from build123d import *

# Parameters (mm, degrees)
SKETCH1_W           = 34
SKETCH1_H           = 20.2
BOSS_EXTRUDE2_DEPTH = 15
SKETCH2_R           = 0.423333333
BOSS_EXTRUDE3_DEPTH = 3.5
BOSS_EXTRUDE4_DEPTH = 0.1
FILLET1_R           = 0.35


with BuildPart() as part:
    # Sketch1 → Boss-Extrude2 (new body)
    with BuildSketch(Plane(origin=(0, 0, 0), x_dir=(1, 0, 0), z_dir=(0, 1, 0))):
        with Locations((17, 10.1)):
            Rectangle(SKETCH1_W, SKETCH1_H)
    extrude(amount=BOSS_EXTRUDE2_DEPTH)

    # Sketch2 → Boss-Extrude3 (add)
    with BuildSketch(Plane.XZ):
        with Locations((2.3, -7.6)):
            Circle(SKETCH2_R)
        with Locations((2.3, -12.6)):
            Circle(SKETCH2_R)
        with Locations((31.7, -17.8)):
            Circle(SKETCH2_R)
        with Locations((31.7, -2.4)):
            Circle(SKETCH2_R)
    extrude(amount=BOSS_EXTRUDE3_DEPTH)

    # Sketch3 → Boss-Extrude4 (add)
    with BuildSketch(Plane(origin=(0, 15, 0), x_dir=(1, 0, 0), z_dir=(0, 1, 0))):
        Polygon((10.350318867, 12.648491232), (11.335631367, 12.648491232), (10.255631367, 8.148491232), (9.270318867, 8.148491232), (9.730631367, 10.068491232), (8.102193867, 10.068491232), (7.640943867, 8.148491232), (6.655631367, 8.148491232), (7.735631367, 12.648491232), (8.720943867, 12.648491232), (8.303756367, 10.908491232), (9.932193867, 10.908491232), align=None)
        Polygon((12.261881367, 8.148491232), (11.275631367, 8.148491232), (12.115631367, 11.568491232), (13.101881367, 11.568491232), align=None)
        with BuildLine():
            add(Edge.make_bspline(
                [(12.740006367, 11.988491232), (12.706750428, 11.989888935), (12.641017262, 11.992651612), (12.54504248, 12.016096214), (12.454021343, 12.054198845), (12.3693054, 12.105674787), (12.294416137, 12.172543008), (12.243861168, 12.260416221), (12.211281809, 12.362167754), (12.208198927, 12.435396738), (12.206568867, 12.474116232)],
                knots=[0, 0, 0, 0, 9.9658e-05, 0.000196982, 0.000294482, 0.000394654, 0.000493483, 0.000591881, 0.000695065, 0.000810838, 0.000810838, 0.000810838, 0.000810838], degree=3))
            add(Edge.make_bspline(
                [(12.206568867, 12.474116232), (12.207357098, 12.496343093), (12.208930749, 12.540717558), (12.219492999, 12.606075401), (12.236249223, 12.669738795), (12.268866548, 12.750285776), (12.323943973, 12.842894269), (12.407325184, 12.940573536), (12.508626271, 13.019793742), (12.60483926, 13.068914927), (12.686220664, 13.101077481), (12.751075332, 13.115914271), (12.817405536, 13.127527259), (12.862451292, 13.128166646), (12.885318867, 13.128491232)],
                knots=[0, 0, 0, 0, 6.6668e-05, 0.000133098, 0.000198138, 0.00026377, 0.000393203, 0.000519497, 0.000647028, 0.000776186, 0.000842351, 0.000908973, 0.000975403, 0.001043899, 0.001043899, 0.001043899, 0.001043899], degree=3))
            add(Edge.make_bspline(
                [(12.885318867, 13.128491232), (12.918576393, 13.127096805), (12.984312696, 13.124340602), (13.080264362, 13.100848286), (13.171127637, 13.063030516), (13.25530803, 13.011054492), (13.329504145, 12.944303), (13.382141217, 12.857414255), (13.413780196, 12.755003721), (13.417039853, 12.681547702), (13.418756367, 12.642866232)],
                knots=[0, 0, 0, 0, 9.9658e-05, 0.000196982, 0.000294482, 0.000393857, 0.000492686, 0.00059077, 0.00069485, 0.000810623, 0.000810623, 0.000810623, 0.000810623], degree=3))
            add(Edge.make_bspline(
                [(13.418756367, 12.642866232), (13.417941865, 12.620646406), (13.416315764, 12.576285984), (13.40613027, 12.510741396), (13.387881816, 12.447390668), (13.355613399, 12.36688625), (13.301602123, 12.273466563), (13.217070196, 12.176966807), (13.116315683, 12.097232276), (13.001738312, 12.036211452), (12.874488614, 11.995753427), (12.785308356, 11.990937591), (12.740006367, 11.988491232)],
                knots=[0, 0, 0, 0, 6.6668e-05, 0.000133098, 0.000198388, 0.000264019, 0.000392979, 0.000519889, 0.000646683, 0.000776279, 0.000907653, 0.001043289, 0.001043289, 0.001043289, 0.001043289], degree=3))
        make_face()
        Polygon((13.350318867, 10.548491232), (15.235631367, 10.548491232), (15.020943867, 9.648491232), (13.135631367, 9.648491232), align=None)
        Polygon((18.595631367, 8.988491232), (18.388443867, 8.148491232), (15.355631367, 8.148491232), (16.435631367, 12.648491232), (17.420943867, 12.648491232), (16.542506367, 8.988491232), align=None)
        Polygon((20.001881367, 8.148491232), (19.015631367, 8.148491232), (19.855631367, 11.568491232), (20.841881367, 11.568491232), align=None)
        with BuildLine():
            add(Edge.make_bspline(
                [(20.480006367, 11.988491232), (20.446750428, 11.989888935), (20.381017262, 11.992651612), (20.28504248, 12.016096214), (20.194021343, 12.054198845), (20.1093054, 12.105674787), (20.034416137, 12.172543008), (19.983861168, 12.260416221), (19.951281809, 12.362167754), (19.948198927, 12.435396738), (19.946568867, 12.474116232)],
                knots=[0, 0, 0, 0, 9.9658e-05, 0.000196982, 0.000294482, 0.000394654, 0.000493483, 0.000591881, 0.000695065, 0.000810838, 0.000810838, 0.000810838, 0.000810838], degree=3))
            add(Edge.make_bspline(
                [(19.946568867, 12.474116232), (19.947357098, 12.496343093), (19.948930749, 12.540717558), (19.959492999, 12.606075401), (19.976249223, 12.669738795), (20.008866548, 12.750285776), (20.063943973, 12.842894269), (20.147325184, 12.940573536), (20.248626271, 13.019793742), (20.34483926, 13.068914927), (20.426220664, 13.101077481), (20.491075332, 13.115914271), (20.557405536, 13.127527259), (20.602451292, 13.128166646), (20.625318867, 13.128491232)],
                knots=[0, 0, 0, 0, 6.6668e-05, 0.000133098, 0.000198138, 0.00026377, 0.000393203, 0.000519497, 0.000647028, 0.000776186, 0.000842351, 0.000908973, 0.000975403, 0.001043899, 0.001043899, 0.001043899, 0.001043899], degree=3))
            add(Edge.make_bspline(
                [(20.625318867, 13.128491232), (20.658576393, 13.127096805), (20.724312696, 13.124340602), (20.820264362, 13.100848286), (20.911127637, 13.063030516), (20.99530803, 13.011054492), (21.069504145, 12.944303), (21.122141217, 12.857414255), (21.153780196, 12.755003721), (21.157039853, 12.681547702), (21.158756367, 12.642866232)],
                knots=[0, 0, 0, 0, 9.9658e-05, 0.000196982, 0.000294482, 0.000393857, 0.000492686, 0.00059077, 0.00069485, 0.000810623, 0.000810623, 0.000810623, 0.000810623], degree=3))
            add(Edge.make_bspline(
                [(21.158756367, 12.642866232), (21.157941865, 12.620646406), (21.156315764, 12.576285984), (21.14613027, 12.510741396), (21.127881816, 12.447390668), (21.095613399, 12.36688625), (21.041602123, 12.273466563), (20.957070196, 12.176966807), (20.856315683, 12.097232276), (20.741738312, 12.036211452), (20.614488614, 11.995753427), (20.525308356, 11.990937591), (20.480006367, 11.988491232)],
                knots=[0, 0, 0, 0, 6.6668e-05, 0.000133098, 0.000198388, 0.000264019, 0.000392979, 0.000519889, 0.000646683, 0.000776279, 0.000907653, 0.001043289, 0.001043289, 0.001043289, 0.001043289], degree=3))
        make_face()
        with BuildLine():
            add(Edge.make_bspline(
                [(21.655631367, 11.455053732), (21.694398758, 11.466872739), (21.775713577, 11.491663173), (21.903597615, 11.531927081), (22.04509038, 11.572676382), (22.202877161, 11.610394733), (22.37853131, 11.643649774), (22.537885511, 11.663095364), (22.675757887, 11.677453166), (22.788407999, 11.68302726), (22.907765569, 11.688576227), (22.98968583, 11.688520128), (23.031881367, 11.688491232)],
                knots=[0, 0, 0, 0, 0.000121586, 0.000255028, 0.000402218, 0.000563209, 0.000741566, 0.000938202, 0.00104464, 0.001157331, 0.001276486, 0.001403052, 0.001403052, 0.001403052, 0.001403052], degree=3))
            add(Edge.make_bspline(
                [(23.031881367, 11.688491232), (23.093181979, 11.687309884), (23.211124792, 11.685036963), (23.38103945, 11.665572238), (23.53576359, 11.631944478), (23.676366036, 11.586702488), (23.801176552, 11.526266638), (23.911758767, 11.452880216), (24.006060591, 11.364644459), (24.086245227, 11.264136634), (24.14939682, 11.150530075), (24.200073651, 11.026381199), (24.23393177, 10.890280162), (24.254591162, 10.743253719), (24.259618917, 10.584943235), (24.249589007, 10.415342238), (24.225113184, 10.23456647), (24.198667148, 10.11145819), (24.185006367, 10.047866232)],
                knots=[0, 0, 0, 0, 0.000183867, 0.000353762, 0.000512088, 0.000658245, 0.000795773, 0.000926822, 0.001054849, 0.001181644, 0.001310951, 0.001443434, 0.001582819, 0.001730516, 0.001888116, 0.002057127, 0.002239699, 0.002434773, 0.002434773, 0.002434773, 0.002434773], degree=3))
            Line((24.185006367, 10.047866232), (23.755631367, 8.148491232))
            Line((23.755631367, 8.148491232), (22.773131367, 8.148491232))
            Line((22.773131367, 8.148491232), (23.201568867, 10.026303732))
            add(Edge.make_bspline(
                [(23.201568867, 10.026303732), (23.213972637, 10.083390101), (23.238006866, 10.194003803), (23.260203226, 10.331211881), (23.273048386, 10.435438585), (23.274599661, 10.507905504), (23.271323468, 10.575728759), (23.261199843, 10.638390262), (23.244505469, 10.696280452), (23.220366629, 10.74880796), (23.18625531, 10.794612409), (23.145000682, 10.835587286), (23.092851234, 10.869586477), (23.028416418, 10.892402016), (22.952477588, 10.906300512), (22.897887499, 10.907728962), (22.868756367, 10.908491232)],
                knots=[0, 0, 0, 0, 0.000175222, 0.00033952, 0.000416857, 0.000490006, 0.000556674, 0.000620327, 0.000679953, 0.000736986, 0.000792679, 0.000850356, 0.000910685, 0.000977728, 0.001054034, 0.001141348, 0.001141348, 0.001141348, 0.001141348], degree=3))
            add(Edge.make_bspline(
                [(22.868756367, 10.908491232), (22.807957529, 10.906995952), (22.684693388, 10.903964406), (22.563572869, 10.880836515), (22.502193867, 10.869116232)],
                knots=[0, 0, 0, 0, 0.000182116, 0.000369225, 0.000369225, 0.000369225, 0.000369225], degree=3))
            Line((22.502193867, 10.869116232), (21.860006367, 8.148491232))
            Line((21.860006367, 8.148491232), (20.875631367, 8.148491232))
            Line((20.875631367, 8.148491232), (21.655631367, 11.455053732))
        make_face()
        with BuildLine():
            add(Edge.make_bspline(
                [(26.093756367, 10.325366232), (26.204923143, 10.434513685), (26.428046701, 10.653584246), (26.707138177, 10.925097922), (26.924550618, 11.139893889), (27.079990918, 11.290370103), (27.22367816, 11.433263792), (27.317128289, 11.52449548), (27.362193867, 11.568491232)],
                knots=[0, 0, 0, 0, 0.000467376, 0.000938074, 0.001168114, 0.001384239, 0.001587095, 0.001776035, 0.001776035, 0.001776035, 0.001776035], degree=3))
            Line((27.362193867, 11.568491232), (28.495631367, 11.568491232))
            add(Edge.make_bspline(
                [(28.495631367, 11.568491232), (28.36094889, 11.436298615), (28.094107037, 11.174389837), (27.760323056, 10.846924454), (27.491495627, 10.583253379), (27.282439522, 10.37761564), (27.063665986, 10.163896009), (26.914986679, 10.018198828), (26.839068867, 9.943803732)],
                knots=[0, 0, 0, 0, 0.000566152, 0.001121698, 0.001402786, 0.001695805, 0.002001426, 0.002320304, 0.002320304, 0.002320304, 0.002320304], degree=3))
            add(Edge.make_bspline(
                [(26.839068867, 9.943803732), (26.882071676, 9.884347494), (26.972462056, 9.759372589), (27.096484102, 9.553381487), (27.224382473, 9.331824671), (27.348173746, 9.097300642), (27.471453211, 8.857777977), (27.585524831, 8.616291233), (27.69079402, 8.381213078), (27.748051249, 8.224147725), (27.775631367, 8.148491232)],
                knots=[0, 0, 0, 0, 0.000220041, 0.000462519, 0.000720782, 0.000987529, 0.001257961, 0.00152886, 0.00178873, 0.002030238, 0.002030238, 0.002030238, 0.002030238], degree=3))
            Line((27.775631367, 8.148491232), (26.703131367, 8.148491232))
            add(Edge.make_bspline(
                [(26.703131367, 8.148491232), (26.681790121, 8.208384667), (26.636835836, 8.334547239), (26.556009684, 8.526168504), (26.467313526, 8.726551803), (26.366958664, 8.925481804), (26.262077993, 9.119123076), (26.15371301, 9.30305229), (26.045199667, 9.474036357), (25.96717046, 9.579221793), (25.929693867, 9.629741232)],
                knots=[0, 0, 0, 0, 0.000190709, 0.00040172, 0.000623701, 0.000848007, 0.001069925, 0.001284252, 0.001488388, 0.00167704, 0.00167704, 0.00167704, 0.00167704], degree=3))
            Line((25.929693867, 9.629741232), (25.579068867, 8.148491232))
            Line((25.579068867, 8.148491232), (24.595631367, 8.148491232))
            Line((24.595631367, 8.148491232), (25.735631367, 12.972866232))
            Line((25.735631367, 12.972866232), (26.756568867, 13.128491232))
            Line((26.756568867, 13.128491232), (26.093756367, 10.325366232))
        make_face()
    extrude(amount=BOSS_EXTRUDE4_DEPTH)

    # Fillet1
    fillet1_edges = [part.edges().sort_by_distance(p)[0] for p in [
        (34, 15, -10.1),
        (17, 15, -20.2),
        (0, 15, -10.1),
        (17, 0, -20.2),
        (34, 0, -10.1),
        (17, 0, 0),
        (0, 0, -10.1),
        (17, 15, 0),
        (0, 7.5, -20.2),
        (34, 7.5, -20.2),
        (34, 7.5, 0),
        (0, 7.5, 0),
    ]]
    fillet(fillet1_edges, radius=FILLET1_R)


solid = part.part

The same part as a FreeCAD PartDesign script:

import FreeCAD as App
import Part
import Sketcher

V = App.Vector
Q = App.Units.Quantity


def edges_at(feature, points):
    """Names of the edges that pass closest to the given points."""
    edges = feature.Shape.Edges
    near = lambda p: min(range(len(edges)), key=lambda i: edges[i].distToShape(Part.Vertex(*p))[0])
    return sorted({f"Edge{near(p) + 1}" for p in points})

doc = App.newDocument("Part")
body = doc.addObject("PartDesign::Body", "Body")

# Sketch on XZ plane
sketch1 = body.newObject("Sketcher::SketchObject", "Sketch")
sketch1.AttachmentSupport = (doc.getObject("XZ_Plane"), [""])
sketch1.MapMode = "FlatFace"
sketch1.addGeometry([
    Part.LineSegment(V(0, -20, 0), V(0, 0, 0)),
    Part.LineSegment(V(0, 0, 0), V(34, 0, 0)),
    Part.LineSegment(V(34, 0, 0), V(34, -20, 0)),
    Part.LineSegment(V(34, -20, 0), V(0, -20, 0)),
], False)
sketch1.addConstraint([
    Sketcher.Constraint("Coincident", 0, 2, 1, 1),
    Sketcher.Constraint("Coincident", 1, 2, 2, 1),
    Sketcher.Constraint("Coincident", 2, 2, 3, 1),
    Sketcher.Constraint("Coincident", 3, 2, 0, 1),
    Sketcher.Constraint("Vertical", 0),
    Sketcher.Constraint("Horizontal", 1),
    Sketcher.Constraint("Vertical", 2),
    Sketcher.Constraint("Horizontal", 3),
    Sketcher.Constraint("Coincident", 0, 2, -1, 1),
    Sketcher.Constraint("DistanceX", 1, 1, 1, 2, Q("34 mm")),
    Sketcher.Constraint("DistanceY", 0, 1, 0, 2, Q("20.2 mm")),
])
pad1 = body.newObject("PartDesign::Pad", "Pad")
pad1.Profile = sketch1
pad1.Length = 15
pad1.Reversed = True

# Sketch on XZ plane
sketch2 = body.newObject("Sketcher::SketchObject", "Sketch001")
sketch2.AttachmentSupport = (doc.getObject("XZ_Plane"), [""])
sketch2.MapMode = "FlatFace"
sketch2.addGeometry([
    Part.Circle(V(2.3, -7.6, 0), V(0, 0, 1), 0.42),
    Part.Circle(V(2.3, -12.6, 0), V(0, 0, 1), 0.42),
    Part.Circle(V(31.7, -17.8, 0), V(0, 0, 1), 0.42),
    Part.Circle(V(31.7, -2.4, 0), V(0, 0, 1), 0.42),
], False)
sketch2.addConstraint([
    Sketcher.Constraint("Equal", 0, 1),
    Sketcher.Constraint("Equal", 1, 2),
    Sketcher.Constraint("Equal", 2, 3),
    Sketcher.Constraint("Vertical", 0, 3, 1, 3),
    Sketcher.Constraint("Vertical", 2, 3, 3, 3),
    Sketcher.Constraint("DistanceY", 1, 3, 0, 3, Q("5 mm")),
    Sketcher.Constraint("DistanceX", -1, 1, 0, 3, Q("2.3 mm")),
    Sketcher.Constraint("DistanceY", 0, 3, -1, 1, Q("7.6 mm")),
    Sketcher.Constraint("DistanceX", -1, 1, 2, 3, Q("31.7 mm")),
    Sketcher.Constraint("DistanceY", 2, 3, -1, 1, Q("17.8 mm")),
    Sketcher.Constraint("DistanceY", 3, 3, -1, 1, Q("2.4 mm")),
    Sketcher.Constraint("Diameter", 0, Q("0.846667 mm")),
])
pad2 = body.newObject("PartDesign::Pad", "Pad001")
pad2.Profile = sketch2
pad2.Length = 3.5

# Sketch on XZ plane
sketch3 = body.newObject("Sketcher::SketchObject", "Sketch002")
sketch3.AttachmentSupport = (doc.getObject("XZ_Plane"), [""])
sketch3.MapMode = "FlatFace"
sketch3.AttachmentOffset = App.Placement(V(0, 0, -15), App.Rotation())
sketch3.addGeometry([
    Part.LineSegment(V(11.335631, -12.648491, 0), V(10.350319, -12.648491, 0)),  # 0
    Part.LineSegment(V(10.350319, -12.648491, 0), V(9.932194, -10.908491, 0)),  # 1
    Part.LineSegment(V(9.932194, -10.908491, 0), V(8.303756, -10.908491, 0)),  # 2
    Part.LineSegment(V(8.303756, -10.908491, 0), V(8.720944, -12.648491, 0)),  # 3
    Part.LineSegment(V(8.720944, -12.648491, 0), V(7.735631, -12.648491, 0)),  # 4
    Part.LineSegment(V(7.735631, -12.648491, 0), V(6.655631, -8.148491, 0)),  # 5
    Part.LineSegment(V(6.655631, -8.148491, 0), V(7.640944, -8.148491, 0)),  # 6
    Part.LineSegment(V(7.640944, -8.148491, 0), V(8.102194, -10.068491, 0)),  # 7
    Part.LineSegment(V(8.102194, -10.068491, 0), V(9.730631, -10.068491, 0)),  # 8
    Part.LineSegment(V(9.730631, -10.068491, 0), V(9.270319, -8.148491, 0)),  # 9
    Part.LineSegment(V(9.270319, -8.148491, 0), V(10.255631, -8.148491, 0)),  # 10
    Part.LineSegment(V(10.255631, -8.148491, 0), V(11.335631, -12.648491, 0)),  # 11
    Part.LineSegment(V(11.275631, -8.148491, 0), V(12.261881, -8.148491, 0)),  # 12
    Part.LineSegment(V(12.261881, -8.148491, 0), V(13.101881, -11.568491, 0)),  # 13
    Part.LineSegment(V(13.101881, -11.568491, 0), V(12.115631, -11.568491, 0)),  # 14
    Part.LineSegment(V(12.115631, -11.568491, 0), V(11.275631, -8.148491, 0)),  # 15
    Part.BSplineCurve([V(12.740006, -11.988491, 0), V(12.70675, -11.989889, 0), V(12.641017, -11.992652, 0), V(12.545042, -12.016096, 0), V(12.454021, -12.054199, 0), V(12.369305, -12.105675, 0), V(12.294416, -12.172543, 0), V(12.243861, -12.260416, 0), V(12.211282, -12.362168, 0), V(12.208199, -12.435397, 0), V(12.206569, -12.474116, 0)], [4, 1, 1, 1, 1, 1, 1, 1, 4], [0, 0.000099658, 0.000196982, 0.000294482, 0.000394654, 0.000493483, 0.000591881, 0.000695065, 0.000810838], False, 3, [1, 1, 1, 1, 1, 1, 1, 1, 1, 1, 1], False),  # 16
    Part.BSplineCurve([V(13.418756, -12.642866, 0), V(13.417942, -12.620646, 0), V(13.416316, -12.576286, 0), V(13.40613, -12.510741, 0), V(13.387882, -12.447391, 0), V(13.355613, -12.366886, 0), V(13.301602, -12.273467, 0), V(13.21707, -12.176967, 0), V(13.116316, -12.097232, 0), V(13.001738, -12.036211, 0), V(12.874489, -11.995753, 0), V(12.785308, -11.990938, 0), V(12.740006, -11.988491, 0)], [4, 1, 1, 1, 1, 1, 1, 1, 1, 1, 4], [0, 0.000066668, 0.000133098, 0.000198388, 0.000264019, 0.000392979, 0.000519889, 0.000646683, 0.000776279, 0.000907653, 0.001043289], False, 3, [1, 1, 1, 1, 1, 1, 1, 1, 1, 1, 1, 1, 1], False),  # 17
    Part.BSplineCurve([V(12.885319, -13.128491, 0), V(12.918576, -13.127097, 0), V(12.984313, -13.124341, 0), V(13.080264, -13.100848, 0), V(13.171128, -13.063031, 0), V(13.255308, -13.011054, 0), V(13.329504, -12.944303, 0), V(13.382141, -12.857414, 0), V(13.41378, -12.755004, 0), V(13.41704, -12.681548, 0), V(13.418756, -12.642866, 0)], [4, 1, 1, 1, 1, 1, 1, 1, 4], [0, 0.000099658, 0.000196982, 0.000294482, 0.000393857, 0.000492686, 0.00059077, 0.00069485, 0.000810623], False, 3, [1, 1, 1, 1, 1, 1, 1, 1, 1, 1, 1], False),  # 18
    Part.BSplineCurve([V(12.206569, -12.474116, 0), V(12.207357, -12.496343, 0), V(12.208931, -12.540718, 0), V(12.219493, -12.606075, 0), V(12.236249, -12.669739, 0), V(12.268867, -12.750286, 0), V(12.323944, -12.842894, 0), V(12.407325, -12.940574, 0), V(12.508626, -13.019794, 0), V(12.604839, -13.068915, 0), V(12.686221, -13.101077, 0), V(12.751075, -13.115914, 0), V(12.817406, -13.127527, 0), V(12.862451, -13.128167, 0), V(12.885319, -13.128491, 0)], [4, 1, 1, 1, 1, 1, 1, 1, 1, 1, 1, 1, 4], [0, 0.000066668, 0.000133098, 0.000198138, 0.00026377, 0.000393203, 0.000519497, 0.000647028, 0.000776186, 0.000842351, 0.000908973, 0.000975403, 0.001043899], False, 3, [1, 1, 1, 1, 1, 1, 1, 1, 1, 1, 1, 1, 1, 1, 1], False),  # 19
    Part.LineSegment(V(15.235631, -10.548491, 0), V(13.350319, -10.548491, 0)),  # 20
    Part.LineSegment(V(13.350319, -10.548491, 0), V(13.135631, -9.648491, 0)),  # 21
    Part.LineSegment(V(13.135631, -9.648491, 0), V(15.020944, -9.648491, 0)),  # 22
    Part.LineSegment(V(15.020944, -9.648491, 0), V(15.235631, -10.548491, 0)),  # 23
    Part.LineSegment(V(18.388444, -8.148491, 0), V(18.595631, -8.988491, 0)),  # 24
    Part.LineSegment(V(18.595631, -8.988491, 0), V(16.542506, -8.988491, 0)),  # 25
    Part.LineSegment(V(16.542506, -8.988491, 0), V(17.420944, -12.648491, 0)),  # 26
    Part.LineSegment(V(17.420944, -12.648491, 0), V(16.435631, -12.648491, 0)),  # 27
    Part.LineSegment(V(16.435631, -12.648491, 0), V(15.355631, -8.148491, 0)),  # 28
    Part.LineSegment(V(15.355631, -8.148491, 0), V(18.388444, -8.148491, 0)),  # 29
    Part.LineSegment(V(19.015631, -8.148491, 0), V(20.001881, -8.148491, 0)),  # 30
    Part.LineSegment(V(20.001881, -8.148491, 0), V(20.841881, -11.568491, 0)),  # 31
    Part.LineSegment(V(20.841881, -11.568491, 0), V(19.855631, -11.568491, 0)),  # 32
    Part.LineSegment(V(19.855631, -11.568491, 0), V(19.015631, -8.148491, 0)),  # 33
    Part.BSplineCurve([V(20.480006, -11.988491, 0), V(20.44675, -11.989889, 0), V(20.381017, -11.992652, 0), V(20.285042, -12.016096, 0), V(20.194021, -12.054199, 0), V(20.109305, -12.105675, 0), V(20.034416, -12.172543, 0), V(19.983861, -12.260416, 0), V(19.951282, -12.362168, 0), V(19.948199, -12.435397, 0), V(19.946569, -12.474116, 0)], [4, 1, 1, 1, 1, 1, 1, 1, 4], [0, 0.000099658, 0.000196982, 0.000294482, 0.000394654, 0.000493483, 0.000591881, 0.000695065, 0.000810838], False, 3, [1, 1, 1, 1, 1, 1, 1, 1, 1, 1, 1], False),  # 34
    Part.BSplineCurve([V(21.158756, -12.642866, 0), V(21.157942, -12.620646, 0), V(21.156316, -12.576286, 0), V(21.14613, -12.510741, 0), V(21.127882, -12.447391, 0), V(21.095613, -12.366886, 0), V(21.041602, -12.273467, 0), V(20.95707, -12.176967, 0), V(20.856316, -12.097232, 0), V(20.741738, -12.036211, 0), V(20.614489, -11.995753, 0), V(20.525308, -11.990938, 0), V(20.480006, -11.988491, 0)], [4, 1, 1, 1, 1, 1, 1, 1, 1, 1, 4], [0, 0.000066668, 0.000133098, 0.000198388, 0.000264019, 0.000392979, 0.000519889, 0.000646683, 0.000776279, 0.000907653, 0.001043289], False, 3, [1, 1, 1, 1, 1, 1, 1, 1, 1, 1, 1, 1, 1], False),  # 35
    Part.BSplineCurve([V(20.625319, -13.128491, 0), V(20.658576, -13.127097, 0), V(20.724313, -13.124341, 0), V(20.820264, -13.100848, 0), V(20.911128, -13.063031, 0), V(20.995308, -13.011054, 0), V(21.069504, -12.944303, 0), V(21.122141, -12.857414, 0), V(21.15378, -12.755004, 0), V(21.15704, -12.681548, 0), V(21.158756, -12.642866, 0)], [4, 1, 1, 1, 1, 1, 1, 1, 4], [0, 0.000099658, 0.000196982, 0.000294482, 0.000393857, 0.000492686, 0.00059077, 0.00069485, 0.000810623], False, 3, [1, 1, 1, 1, 1, 1, 1, 1, 1, 1, 1], False),  # 36
    Part.BSplineCurve([V(19.946569, -12.474116, 0), V(19.947357, -12.496343, 0), V(19.948931, -12.540718, 0), V(19.959493, -12.606075, 0), V(19.976249, -12.669739, 0), V(20.008867, -12.750286, 0), V(20.063944, -12.842894, 0), V(20.147325, -12.940574, 0), V(20.248626, -13.019794, 0), V(20.344839, -13.068915, 0), V(20.426221, -13.101077, 0), V(20.491075, -13.115914, 0), V(20.557406, -13.127527, 0), V(20.602451, -13.128167, 0), V(20.625319, -13.128491, 0)], [4, 1, 1, 1, 1, 1, 1, 1, 1, 1, 1, 1, 4], [0, 0.000066668, 0.000133098, 0.000198138, 0.00026377, 0.000393203, 0.000519497, 0.000647028, 0.000776186, 0.000842351, 0.000908973, 0.000975403, 0.001043899], False, 3, [1, 1, 1, 1, 1, 1, 1, 1, 1, 1, 1, 1, 1, 1, 1], False),  # 37
    Part.BSplineCurve([V(21.655631, -11.455054, 0), V(21.694399, -11.466873, 0), V(21.775714, -11.491663, 0), V(21.903598, -11.531927, 0), V(22.04509, -11.572676, 0), V(22.202877, -11.610395, 0), V(22.378531, -11.64365, 0), V(22.537886, -11.663095, 0), V(22.675758, -11.677453, 0), V(22.788408, -11.683027, 0), V(22.907766, -11.688576, 0), V(22.989686, -11.68852, 0), V(23.031881, -11.688491, 0)], [4, 1, 1, 1, 1, 1, 1, 1, 1, 1, 4], [0, 0.000121586, 0.000255028, 0.000402218, 0.000563209, 0.000741566, 0.000938202, 0.00104464, 0.001157331, 0.001276486, 0.001403052], False, 3, [1, 1, 1, 1, 1, 1, 1, 1, 1, 1, 1, 1, 1], False),  # 38
    Part.LineSegment(V(21.655631, -11.455054, 0), V(20.875631, -8.148491, 0)),  # 39
    Part.LineSegment(V(20.875631, -8.148491, 0), V(21.860006, -8.148491, 0)),  # 40
    Part.LineSegment(V(21.860006, -8.148491, 0), V(22.502194, -10.869116, 0)),  # 41
    Part.BSplineCurve([V(22.868756, -10.908491, 0), V(22.807958, -10.906996, 0), V(22.684693, -10.903964, 0), V(22.563573, -10.880837, 0), V(22.502194, -10.869116, 0)], [4, 1, 4], [0, 0.000182116, 0.000369225], False, 3, [1, 1, 1, 1, 1], False),  # 42
    Part.BSplineCurve([V(23.201569, -10.026304, 0), V(23.213973, -10.08339, 0), V(23.238007, -10.194004, 0), V(23.260203, -10.331212, 0), V(23.273048, -10.435439, 0), V(23.2746, -10.507906, 0), V(23.271323, -10.575729, 0), V(23.2612, -10.63839, 0), V(23.244505, -10.69628, 0), V(23.220367, -10.748808, 0), V(23.186255, -10.794612, 0), V(23.145001, -10.835587, 0), V(23.092851, -10.869586, 0), V(23.028416, -10.892402, 0), V(22.952478, -10.906301, 0), V(22.897887, -10.907729, 0), V(22.868756, -10.908491, 0)], [4, 1, 1, 1, 1, 1, 1, 1, 1, 1, 1, 1, 1, 1, 4], [0, 0.000175222, 0.00033952, 0.000416857, 0.000490006, 0.000556674, 0.000620327, 0.000679953, 0.000736986, 0.000792679, 0.000850356, 0.000910685, 0.000977728, 0.001054034, 0.001141348], False, 3, [1, 1, 1, 1, 1, 1, 1, 1, 1, 1, 1, 1, 1, 1, 1, 1, 1], False),  # 43
    Part.LineSegment(V(23.201569, -10.026304, 0), V(22.773131, -8.148491, 0)),  # 44
    Part.LineSegment(V(22.773131, -8.148491, 0), V(23.755631, -8.148491, 0)),  # 45
    Part.LineSegment(V(23.755631, -8.148491, 0), V(24.185006, -10.047866, 0)),  # 46
    Part.BSplineCurve([V(23.031881, -11.688491, 0), V(23.093182, -11.68731, 0), V(23.211125, -11.685037, 0), V(23.381039, -11.665572, 0), V(23.535764, -11.631944, 0), V(23.676366, -11.586702, 0), V(23.801177, -11.526267, 0), V(23.911759, -11.45288, 0), V(24.006061, -11.364644, 0), V(24.086245, -11.264137, 0), V(24.149397, -11.15053, 0), V(24.200074, -11.026381, 0), V(24.233932, -10.89028, 0), V(24.254591, -10.743254, 0), V(24.259619, -10.584943, 0), V(24.249589, -10.415342, 0), V(24.225113, -10.234566, 0), V(24.198667, -10.111458, 0), V(24.185006, -10.047866, 0)], [4, 1, 1, 1, 1, 1, 1, 1, 1, 1, 1, 1, 1, 1, 1, 1, 4], [0, 0.000183867, 0.000353762, 0.000512088, 0.000658245, 0.000795773, 0.000926822, 0.001054849, 0.001181644, 0.001310951, 0.001443434, 0.001582819, 0.001730516, 0.001888116, 0.002057127, 0.002239699, 0.002434773], False, 3, [1, 1, 1, 1, 1, 1, 1, 1, 1, 1, 1, 1, 1, 1, 1, 1, 1, 1, 1], False),  # 47
    Part.BSplineCurve([V(26.093756, -10.325366, 0), V(26.204923, -10.434514, 0), V(26.428047, -10.653584, 0), V(26.707138, -10.925098, 0), V(26.924551, -11.139894, 0), V(27.079991, -11.29037, 0), V(27.223678, -11.433264, 0), V(27.317128, -11.524495, 0), V(27.362194, -11.568491, 0)], [4, 1, 1, 1, 1, 1, 4], [0, 0.000467376, 0.000938074, 0.001168114, 0.001384239, 0.001587095, 0.001776035], False, 3, [1, 1, 1, 1, 1, 1, 1, 1, 1], False),  # 48
    Part.LineSegment(V(26.093756, -10.325366, 0), V(26.756569, -13.128491, 0)),  # 49
    Part.LineSegment(V(26.756569, -13.128491, 0), V(25.735631, -12.972866, 0)),  # 50
    Part.LineSegment(V(25.735631, -12.972866, 0), V(24.595631, -8.148491, 0)),  # 51
    Part.LineSegment(V(24.595631, -8.148491, 0), V(25.579069, -8.148491, 0)),  # 52
    Part.LineSegment(V(25.579069, -8.148491, 0), V(25.929694, -9.629741, 0)),  # 53
    Part.BSplineCurve([V(26.703131, -8.148491, 0), V(26.68179, -8.208385, 0), V(26.636836, -8.334547, 0), V(26.55601, -8.526169, 0), V(26.467314, -8.726552, 0), V(26.366959, -8.925482, 0), V(26.262078, -9.119123, 0), V(26.153713, -9.303052, 0), V(26.0452, -9.474036, 0), V(25.96717, -9.579222, 0), V(25.929694, -9.629741, 0)], [4, 1, 1, 1, 1, 1, 1, 1, 4], [0, 0.000190709, 0.00040172, 0.000623701, 0.000848007, 0.001069925, 0.001284252, 0.001488388, 0.00167704], False, 3, [1, 1, 1, 1, 1, 1, 1, 1, 1, 1, 1], False),  # 54
    Part.LineSegment(V(26.703131, -8.148491, 0), V(27.775631, -8.148491, 0)),  # 55
    Part.BSplineCurve([V(26.839069, -9.943804, 0), V(26.882072, -9.884347, 0), V(26.972462, -9.759373, 0), V(27.096484, -9.553381, 0), V(27.224382, -9.331825, 0), V(27.348174, -9.097301, 0), V(27.471453, -8.857778, 0), V(27.585525, -8.616291, 0), V(27.690794, -8.381213, 0), V(27.748051, -8.224148, 0), V(27.775631, -8.148491, 0)], [4, 1, 1, 1, 1, 1, 1, 1, 4], [0, 0.000220041, 0.000462519, 0.000720782, 0.000987529, 0.001257961, 0.00152886, 0.00178873, 0.002030238], False, 3, [1, 1, 1, 1, 1, 1, 1, 1, 1, 1, 1], False),  # 56
    Part.BSplineCurve([V(28.495631, -11.568491, 0), V(28.360949, -11.436299, 0), V(28.094107, -11.17439, 0), V(27.760323, -10.846924, 0), V(27.491496, -10.583253, 0), V(27.28244, -10.377616, 0), V(27.063666, -10.163896, 0), V(26.914987, -10.018199, 0), V(26.839069, -9.943804, 0)], [4, 1, 1, 1, 1, 1, 4], [0, 0.000566152, 0.001121698, 0.001402786, 0.001695805, 0.002001426, 0.002320304], False, 3, [1, 1, 1, 1, 1, 1, 1, 1, 1], False),  # 57
    Part.LineSegment(V(28.495631, -11.568491, 0), V(27.362194, -11.568491, 0)),  # 58
], False)
sketch3.addConstraint([
    Sketcher.Constraint("Block", 16),
    Sketcher.Constraint("Block", 17),
    Sketcher.Constraint("Block", 18),
    Sketcher.Constraint("Block", 19),
    Sketcher.Constraint("Block", 34),
    Sketcher.Constraint("Block", 35),
    Sketcher.Constraint("Block", 36),
    Sketcher.Constraint("Block", 37),
    Sketcher.Constraint("Block", 38),
    Sketcher.Constraint("Block", 42),
    Sketcher.Constraint("Block", 43),
    Sketcher.Constraint("Block", 47),
    Sketcher.Constraint("Block", 48),
    Sketcher.Constraint("Block", 54),
    Sketcher.Constraint("Block", 56),
    Sketcher.Constraint("Block", 57),
    Sketcher.Constraint("Coincident", 0, 2, 1, 1),
    Sketcher.Constraint("Coincident", 1, 2, 2, 1),
    Sketcher.Constraint("Coincident", 2, 2, 3, 1),
    Sketcher.Constraint("Coincident", 3, 2, 4, 1),
    Sketcher.Constraint("Coincident", 4, 2, 5, 1),
    Sketcher.Constraint("Coincident", 5, 2, 6, 1),
    Sketcher.Constraint("Coincident", 6, 2, 7, 1),
    Sketcher.Constraint("Coincident", 7, 2, 8, 1),
    Sketcher.Constraint("Coincident", 8, 2, 9, 1),
    Sketcher.Constraint("Coincident", 9, 2, 10, 1),
    Sketcher.Constraint("Coincident", 10, 2, 11, 1),
    Sketcher.Constraint("Coincident", 11, 2, 0, 1),
    Sketcher.Constraint("Coincident", 12, 2, 13, 1),
    Sketcher.Constraint("Coincident", 13, 2, 14, 1),
    Sketcher.Constraint("Coincident", 14, 2, 15, 1),
    Sketcher.Constraint("Coincident", 15, 2, 12, 1),
    Sketcher.Constraint("Coincident", 20, 2, 21, 1),
    Sketcher.Constraint("Coincident", 21, 2, 22, 1),
    Sketcher.Constraint("Coincident", 22, 2, 23, 1),
    Sketcher.Constraint("Coincident", 23, 2, 20, 1),
    Sketcher.Constraint("Coincident", 24, 2, 25, 1),
    Sketcher.Constraint("Coincident", 25, 2, 26, 1),
    Sketcher.Constraint("Coincident", 26, 2, 27, 1),
    Sketcher.Constraint("Coincident", 27, 2, 28, 1),
    Sketcher.Constraint("Coincident", 28, 2, 29, 1),
    Sketcher.Constraint("Coincident", 29, 2, 24, 1),
    Sketcher.Constraint("Coincident", 30, 2, 31, 1),
    Sketcher.Constraint("Coincident", 31, 2, 32, 1),
    Sketcher.Constraint("Coincident", 32, 2, 33, 1),
    Sketcher.Constraint("Coincident", 33, 2, 30, 1),
    Sketcher.Constraint("Coincident", 38, 1, 39, 1),
    Sketcher.Constraint("Coincident", 39, 2, 40, 1),
    Sketcher.Constraint("Coincident", 40, 2, 41, 1),
    Sketcher.Constraint("Coincident", 41, 2, 42, 2),
    Sketcher.Constraint("Coincident", 43, 1, 44, 1),
    Sketcher.Constraint("Coincident", 44, 2, 45, 1),
    Sketcher.Constraint("Coincident", 45, 2, 46, 1),
    Sketcher.Constraint("Coincident", 46, 2, 47, 2),
    Sketcher.Constraint("Coincident", 48, 1, 49, 1),
    Sketcher.Constraint("Coincident", 49, 2, 50, 1),
    Sketcher.Constraint("Coincident", 50, 2, 51, 1),
    Sketcher.Constraint("Coincident", 51, 2, 52, 1),
    Sketcher.Constraint("Coincident", 52, 2, 53, 1),
    Sketcher.Constraint("Coincident", 53, 2, 54, 2),
    Sketcher.Constraint("Coincident", 54, 1, 55, 1),
    Sketcher.Constraint("Coincident", 55, 2, 56, 2),
    Sketcher.Constraint("Coincident", 57, 1, 58, 1),
    Sketcher.Constraint("Coincident", 58, 2, 48, 2),
    Sketcher.Constraint("Horizontal", 0),
    Sketcher.Constraint("Horizontal", 2),
    Sketcher.Constraint("Horizontal", 4),
    Sketcher.Constraint("Horizontal", 6),
    Sketcher.Constraint("Horizontal", 8),
    Sketcher.Constraint("Horizontal", 10),
    Sketcher.Constraint("Horizontal", 12),
    Sketcher.Constraint("Horizontal", 14),
    Sketcher.Constraint("Horizontal", 20),
    Sketcher.Constraint("Horizontal", 22),
    Sketcher.Constraint("Horizontal", 25),
    Sketcher.Constraint("Horizontal", 27),
    Sketcher.Constraint("Horizontal", 29),
    Sketcher.Constraint("Horizontal", 30),
    Sketcher.Constraint("Horizontal", 32),
    Sketcher.Constraint("Horizontal", 40),
    Sketcher.Constraint("Horizontal", 45),
    Sketcher.Constraint("Horizontal", 52),
    Sketcher.Constraint("Parallel", 5, 11),
    Sketcher.Constraint("Parallel", 13, 15),
    Sketcher.Constraint("Parallel", 21, 23),
    Sketcher.Constraint("Parallel", 11, 28),
    Sketcher.Constraint("Parallel", 15, 31),
    Sketcher.Constraint("Parallel", 31, 33),
    Sketcher.Constraint("Horizontal", 0, 2, 3, 2),
    Sketcher.Constraint("Horizontal", 6, 2, 9, 2),
    Sketcher.Constraint("Horizontal", 10, 2, 12, 2),
    Sketcher.Constraint("Horizontal", 11, 2, 26, 2),
    Sketcher.Constraint("Horizontal", 15, 2, 28, 2),
    Sketcher.Constraint("Horizontal", 29, 2, 30, 2),
    Sketcher.Constraint("Horizontal", 14, 2, 31, 2),
    Sketcher.Constraint("Horizontal", 33, 2, 39, 2),
    Sketcher.Constraint("Horizontal", 40, 2, 44, 2),
    Sketcher.Constraint("Horizontal", 45, 2, 51, 2),
    Sketcher.Constraint("Horizontal", 52, 2, 55, 2),
    Sketcher.Constraint("Horizontal", 32, 2, 58, 2),
    Sketcher.Constraint("Equal", 0, 4),
    Sketcher.Constraint("Equal", 4, 6),
    Sketcher.Constraint("Equal", 2, 8),
    Sketcher.Constraint("Equal", 6, 10),
    Sketcher.Constraint("Equal", 10, 27),
    Sketcher.Constraint("Equal", 14, 30),
    Sketcher.Constraint("DistanceY", 26, 2, 22, 2, Q("3 mm")),
    Sketcher.Constraint("DistanceY", 4, 2, 5, 2, Q("4.5 mm")),
    Sketcher.Constraint("DistanceY", 13, 2, 8, 2, Q("1.5 mm")),
    Sketcher.Constraint("DistanceY", 20, 2, 12, 2, Q("2.4 mm")),
    Sketcher.Constraint("DistanceX", 21, 2, 23, 2, Q("2.1 mm")),
    Sketcher.Constraint("DistanceX", 22, 2, 26, 2, Q("2.4 mm")),
    Sketcher.Constraint("DistanceX", 23, 2, 27, 2, Q("1.2 mm")),
    Sketcher.Constraint("DistanceY", 0, 2, 1, 2, Q("1.74 mm")),
    Sketcher.Constraint("DistanceX", 5, 2, 4, 2, Q("1.08 mm")),
    Sketcher.Constraint("DistanceX", 7, 2, 1, 2, Q("1.83 mm")),
    Sketcher.Constraint("DistanceX", 12, 2, 13, 2, Q("0.84 mm")),
    Sketcher.Constraint("DistanceX", 11, 2, 14, 2, Q("0.78 mm")),
    Sketcher.Constraint("DistanceX", 14, 2, 21, 2, Q("1.02 mm")),
    Sketcher.Constraint("DistanceY", 22, 2, 24, 2, Q("0.66 mm")),
    Sketcher.Constraint("DistanceX", 23, 2, 24, 2, Q("3.36 mm")),
    Sketcher.Constraint("DistanceX", 24, 2, 32, 2, Q("1.26 mm")),
    Sketcher.Constraint("DistanceX", 33, 2, 39, 2, Q("1.86 mm")),
    Sketcher.Constraint("DistanceX", 39, 2, 45, 2, Q("2.88 mm")),
    Sketcher.Constraint("DistanceY", 49, 2, 45, 2, Q("4.98 mm")),
    Sketcher.Constraint("DistanceX", 45, 2, 50, 2, Q("1.98 mm")),
    Sketcher.Constraint("DistanceX", 45, 2, 51, 2, Q("0.84 mm")),
    Sketcher.Constraint("DistanceX", 51, 2, 55, 2, Q("3.18 mm")),
    Sketcher.Constraint("DistanceX", 45, 1, 45, 2, Q("0.9825 mm")),
    Sketcher.Constraint("DistanceX", 8, 2, 10, 2, Q("0.525 mm")),
    Sketcher.Constraint("DistanceX", 40, 2, 46, 2, Q("2.325 mm")),
    Sketcher.Constraint("DistanceY", 50, 2, 46, 2, Q("2.925 mm")),
    Sketcher.Constraint("DistanceX", 12, 1, 12, 2, Q("0.98625 mm")),
    Sketcher.Constraint("DistanceX", 22, 2, 29, 2, Q("3.3675 mm")),
    Sketcher.Constraint("Distance", 9, Q("1.974408 mm")),
    Sketcher.Constraint("Distance", 26, Q("3.763941 mm")),
    Sketcher.Constraint("Distance", 49, Q("2.880422 mm")),
    Sketcher.Constraint("DistanceX", 2, 2, 2, 1, Q("1.628438 mm")),
    Sketcher.Constraint("DistanceX", 52, 1, 52, 2, Q("0.983438 mm")),
    Sketcher.Constraint("DistanceX", -1, 1, 4, 2, Q("7.735631 mm")),
])
pad3 = body.newObject("PartDesign::Pad", "Pad002")
pad3.Profile = sketch3
pad3.Length = 0.1
pad3.Reversed = True
doc.recompute()

fillet = body.newObject("PartDesign::Fillet", "Fillet")
fillet.Base = (pad3, edges_at(pad3, [
    (34, 15, -10.1),
    (17, 15, -20.2),
    (0, 15, -10.1),
    (17, 0, -20.2),
    (34, 0, -10.1),
    (17, 0, 0),
    (0, 0, -10.1),
    (17, 15, 0),
    (0, 7.5, -20.2),
    (34, 7.5, -20.2),
    (34, 7.5, 0),
    (0, 7.5, 0),
]))
fillet.Radius = 0.35

doc.recompute()
